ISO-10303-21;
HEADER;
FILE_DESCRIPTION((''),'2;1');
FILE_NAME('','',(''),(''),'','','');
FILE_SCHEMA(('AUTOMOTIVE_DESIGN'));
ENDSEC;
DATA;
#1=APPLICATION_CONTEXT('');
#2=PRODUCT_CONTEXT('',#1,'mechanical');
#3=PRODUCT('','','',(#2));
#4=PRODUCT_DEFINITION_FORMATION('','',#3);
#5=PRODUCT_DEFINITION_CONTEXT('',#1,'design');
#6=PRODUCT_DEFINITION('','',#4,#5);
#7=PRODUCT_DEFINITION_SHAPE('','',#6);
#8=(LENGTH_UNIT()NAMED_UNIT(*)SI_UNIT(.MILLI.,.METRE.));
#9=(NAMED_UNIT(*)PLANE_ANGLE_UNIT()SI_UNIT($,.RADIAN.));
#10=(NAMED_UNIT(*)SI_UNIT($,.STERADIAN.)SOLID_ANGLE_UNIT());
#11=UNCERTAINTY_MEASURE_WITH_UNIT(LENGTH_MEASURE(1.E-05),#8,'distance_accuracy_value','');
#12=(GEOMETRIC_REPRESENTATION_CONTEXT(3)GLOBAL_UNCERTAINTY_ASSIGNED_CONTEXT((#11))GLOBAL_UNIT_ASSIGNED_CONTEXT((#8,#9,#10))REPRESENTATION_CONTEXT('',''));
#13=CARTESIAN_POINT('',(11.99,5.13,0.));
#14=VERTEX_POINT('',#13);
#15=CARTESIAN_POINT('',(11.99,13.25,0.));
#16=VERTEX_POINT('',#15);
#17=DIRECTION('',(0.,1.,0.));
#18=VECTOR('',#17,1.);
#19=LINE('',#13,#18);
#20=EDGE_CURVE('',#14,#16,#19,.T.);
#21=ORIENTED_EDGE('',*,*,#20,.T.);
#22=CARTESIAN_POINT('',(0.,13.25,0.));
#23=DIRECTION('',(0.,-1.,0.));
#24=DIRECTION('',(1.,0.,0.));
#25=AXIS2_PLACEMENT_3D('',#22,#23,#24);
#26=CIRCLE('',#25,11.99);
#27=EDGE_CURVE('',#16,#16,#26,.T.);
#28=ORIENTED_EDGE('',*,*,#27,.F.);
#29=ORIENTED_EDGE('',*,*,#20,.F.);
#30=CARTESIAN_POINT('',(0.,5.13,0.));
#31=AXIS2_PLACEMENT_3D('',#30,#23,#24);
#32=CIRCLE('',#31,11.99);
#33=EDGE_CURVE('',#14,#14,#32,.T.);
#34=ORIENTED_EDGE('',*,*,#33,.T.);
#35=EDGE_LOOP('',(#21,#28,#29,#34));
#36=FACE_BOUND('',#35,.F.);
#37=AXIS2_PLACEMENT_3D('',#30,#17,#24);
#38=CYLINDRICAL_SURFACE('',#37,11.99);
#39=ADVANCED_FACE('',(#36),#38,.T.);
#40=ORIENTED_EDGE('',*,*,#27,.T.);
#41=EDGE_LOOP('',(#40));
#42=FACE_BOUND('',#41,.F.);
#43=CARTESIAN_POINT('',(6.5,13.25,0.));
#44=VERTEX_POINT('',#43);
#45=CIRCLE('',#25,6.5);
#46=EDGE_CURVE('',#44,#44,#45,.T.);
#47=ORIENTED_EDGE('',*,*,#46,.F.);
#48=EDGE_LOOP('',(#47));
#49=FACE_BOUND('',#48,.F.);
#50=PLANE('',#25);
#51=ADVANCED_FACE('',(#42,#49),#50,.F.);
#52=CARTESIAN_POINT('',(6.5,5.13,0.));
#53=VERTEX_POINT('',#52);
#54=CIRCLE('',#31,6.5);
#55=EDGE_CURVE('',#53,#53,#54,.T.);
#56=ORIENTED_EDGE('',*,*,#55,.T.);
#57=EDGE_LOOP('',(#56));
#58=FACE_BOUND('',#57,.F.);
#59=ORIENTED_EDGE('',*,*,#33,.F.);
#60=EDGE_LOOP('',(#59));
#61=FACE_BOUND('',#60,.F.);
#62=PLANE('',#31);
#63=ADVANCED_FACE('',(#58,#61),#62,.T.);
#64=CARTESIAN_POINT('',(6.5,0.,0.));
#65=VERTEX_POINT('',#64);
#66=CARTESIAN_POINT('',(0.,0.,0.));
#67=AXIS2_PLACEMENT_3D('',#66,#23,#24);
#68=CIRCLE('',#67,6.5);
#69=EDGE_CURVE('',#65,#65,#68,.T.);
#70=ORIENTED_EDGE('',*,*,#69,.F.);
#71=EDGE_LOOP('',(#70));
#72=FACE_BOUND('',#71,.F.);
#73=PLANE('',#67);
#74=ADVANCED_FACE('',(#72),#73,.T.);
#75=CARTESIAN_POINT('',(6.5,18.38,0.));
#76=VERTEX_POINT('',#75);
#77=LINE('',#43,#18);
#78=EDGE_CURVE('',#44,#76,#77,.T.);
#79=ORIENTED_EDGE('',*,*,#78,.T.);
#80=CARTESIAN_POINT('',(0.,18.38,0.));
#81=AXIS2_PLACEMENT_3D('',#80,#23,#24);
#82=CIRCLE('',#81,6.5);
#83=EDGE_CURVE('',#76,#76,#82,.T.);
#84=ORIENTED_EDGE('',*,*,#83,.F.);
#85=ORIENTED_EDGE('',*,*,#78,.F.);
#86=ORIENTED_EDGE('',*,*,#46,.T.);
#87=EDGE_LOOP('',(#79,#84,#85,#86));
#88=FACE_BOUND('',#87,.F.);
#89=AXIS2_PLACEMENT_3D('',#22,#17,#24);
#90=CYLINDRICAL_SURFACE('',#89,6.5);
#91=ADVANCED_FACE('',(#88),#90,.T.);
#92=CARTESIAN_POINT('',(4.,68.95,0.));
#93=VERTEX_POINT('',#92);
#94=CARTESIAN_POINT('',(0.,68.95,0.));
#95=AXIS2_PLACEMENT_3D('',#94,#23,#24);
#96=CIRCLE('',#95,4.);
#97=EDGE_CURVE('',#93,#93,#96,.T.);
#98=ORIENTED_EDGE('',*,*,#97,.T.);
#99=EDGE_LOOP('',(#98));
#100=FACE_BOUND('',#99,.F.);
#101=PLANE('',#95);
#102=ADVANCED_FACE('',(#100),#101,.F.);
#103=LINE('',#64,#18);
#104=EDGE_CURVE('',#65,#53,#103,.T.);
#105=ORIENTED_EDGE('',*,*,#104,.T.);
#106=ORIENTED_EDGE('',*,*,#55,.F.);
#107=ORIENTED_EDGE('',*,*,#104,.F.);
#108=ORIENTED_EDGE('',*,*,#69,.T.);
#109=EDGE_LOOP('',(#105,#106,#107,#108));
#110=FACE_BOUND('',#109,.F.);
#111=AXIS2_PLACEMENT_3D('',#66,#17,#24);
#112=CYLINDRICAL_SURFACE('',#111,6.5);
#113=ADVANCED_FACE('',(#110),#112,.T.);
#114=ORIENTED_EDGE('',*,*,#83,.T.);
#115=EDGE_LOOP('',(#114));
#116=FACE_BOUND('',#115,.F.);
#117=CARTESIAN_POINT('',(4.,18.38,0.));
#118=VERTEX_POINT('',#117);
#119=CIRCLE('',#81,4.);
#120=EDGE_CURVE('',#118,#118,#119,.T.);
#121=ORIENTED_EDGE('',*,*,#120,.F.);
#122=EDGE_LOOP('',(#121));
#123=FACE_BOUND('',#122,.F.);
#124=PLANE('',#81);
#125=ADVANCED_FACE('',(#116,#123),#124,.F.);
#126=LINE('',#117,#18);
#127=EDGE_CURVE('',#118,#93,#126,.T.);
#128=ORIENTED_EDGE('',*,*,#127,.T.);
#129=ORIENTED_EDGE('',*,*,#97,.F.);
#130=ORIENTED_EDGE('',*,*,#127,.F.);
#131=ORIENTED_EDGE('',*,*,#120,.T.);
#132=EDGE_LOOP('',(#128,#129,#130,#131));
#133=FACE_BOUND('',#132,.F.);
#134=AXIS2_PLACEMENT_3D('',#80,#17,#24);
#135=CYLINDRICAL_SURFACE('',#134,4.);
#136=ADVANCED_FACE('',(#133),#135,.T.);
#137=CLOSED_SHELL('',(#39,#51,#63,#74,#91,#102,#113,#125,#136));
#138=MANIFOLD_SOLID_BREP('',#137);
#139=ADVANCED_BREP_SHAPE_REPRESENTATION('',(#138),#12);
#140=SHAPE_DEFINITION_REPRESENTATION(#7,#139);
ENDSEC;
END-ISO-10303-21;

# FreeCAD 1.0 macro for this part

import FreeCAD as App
import Part
import Sketcher
from FreeCAD import Vector


def add_polygon(sketch, points):
    """Adds a closed chain of lines whose ends are joined by coincident constraints."""
    first, n = sketch.GeometryCount, len(points)
    for a, b in zip(points, points[1:] + points[:1]):
        sketch.addGeometry(Part.LineSegment(App.Vector(*a, 0), App.Vector(*b, 0)), False)
    for i in range(n):
        sketch.addConstraint(Sketcher.Constraint("Coincident", first + i, 2, first + (i + 1) % n, 1))

doc = App.newDocument("Part")
body = doc.addObject("PartDesign::Body", "Body")

# Sketch on XY plane
sketch1 = body.newObject("Sketcher::SketchObject", "Sketch")
sketch1.AttachmentSupport = (doc.getObject("XY_Plane"), [""])
sketch1.MapMode = "FlatFace"
add_polygon(sketch1, [(0, 68.95), (0, 0), (6.5, 0), (6.5, 5.13), (11.99, 5.13), (11.99, 13.25), (6.5, 13.25), (6.5, 18.38), (4, 18.38), (4, 68.95)])  # lines 0-9
sketch1.addConstraint(Sketcher.Constraint("Vertical", 0))
sketch1.addConstraint(Sketcher.Constraint("Horizontal", 1))
sketch1.addConstraint(Sketcher.Constraint("Vertical", 2))
sketch1.addConstraint(Sketcher.Constraint("Horizontal", 3))
sketch1.addConstraint(Sketcher.Constraint("Vertical", 4))
sketch1.addConstraint(Sketcher.Constraint("Horizontal", 5))
sketch1.addConstraint(Sketcher.Constraint("Vertical", 6))
sketch1.addConstraint(Sketcher.Constraint("Horizontal", 7))
sketch1.addConstraint(Sketcher.Constraint("Vertical", 8))
sketch1.addConstraint(Sketcher.Constraint("Horizontal", 9))
sketch1.addConstraint(Sketcher.Constraint("Coincident", 0, 2, -1, 1))
sketch1.addConstraint(Sketcher.Constraint("Vertical", 2, 2, 5, 2))
sketch1.addConstraint(Sketcher.Constraint("Equal", 2, 6))
sketch1.addConstraint(Sketcher.Constraint("DistanceX", 9, 2, 9, 1, 4.0))
sketch1.addConstraint(Sketcher.Constraint("DistanceX", 1, 1, 1, 2, 6.5))
sketch1.addConstraint(Sketcher.Constraint("DistanceY", 0, 2, 0, 1, 68.95))
sketch1.addConstraint(Sketcher.Constraint("DistanceY", 2, 1, 2, 2, 5.13))
sketch1.addConstraint(Sketcher.Constraint("DistanceY", 4, 1, 4, 2, 8.12))
sketch1.addConstraint(Sketcher.Constraint("DistanceX", -1, 1, 3, 2, 11.99))
revolution = body.newObject("PartDesign::Revolution", "Revolution")
revolution.Profile = sketch1
revolution.ReferenceAxis = (sketch1, ["V_Axis"])
revolution.Angle = 360

doc.recompute()
